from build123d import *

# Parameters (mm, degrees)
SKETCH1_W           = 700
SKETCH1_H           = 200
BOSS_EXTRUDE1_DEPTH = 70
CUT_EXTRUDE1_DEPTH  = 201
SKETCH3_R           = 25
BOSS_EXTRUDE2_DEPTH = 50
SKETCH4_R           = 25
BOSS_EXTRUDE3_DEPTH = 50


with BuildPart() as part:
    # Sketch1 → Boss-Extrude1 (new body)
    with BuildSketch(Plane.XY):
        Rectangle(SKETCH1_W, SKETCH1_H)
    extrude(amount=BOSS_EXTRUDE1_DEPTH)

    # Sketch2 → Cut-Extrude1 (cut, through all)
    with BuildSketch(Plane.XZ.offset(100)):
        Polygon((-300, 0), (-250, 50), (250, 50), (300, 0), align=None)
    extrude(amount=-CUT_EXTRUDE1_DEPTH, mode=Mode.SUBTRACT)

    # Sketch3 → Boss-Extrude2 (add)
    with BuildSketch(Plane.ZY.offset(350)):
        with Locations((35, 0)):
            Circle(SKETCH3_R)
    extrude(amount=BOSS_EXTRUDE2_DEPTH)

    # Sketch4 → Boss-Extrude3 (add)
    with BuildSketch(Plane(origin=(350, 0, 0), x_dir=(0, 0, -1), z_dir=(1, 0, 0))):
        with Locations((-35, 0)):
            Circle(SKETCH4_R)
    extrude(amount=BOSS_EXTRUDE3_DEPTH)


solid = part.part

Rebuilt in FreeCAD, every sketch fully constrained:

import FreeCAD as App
import Part
import Sketcher
from FreeCAD import Vector


def add_polygon(sketch, points):
    """Adds a closed chain of lines whose ends are joined by coincident constraints."""
    first, n = sketch.GeometryCount, len(points)
    for a, b in zip(points, points[1:] + points[:1]):
        sketch.addGeometry(Part.LineSegment(App.Vector(*a, 0), App.Vector(*b, 0)), False)
    for i in range(n):
        sketch.addConstraint(Sketcher.Constraint("Coincident", first + i, 2, first + (i + 1) % n, 1))

doc = App.newDocument("Part")
params = doc.addObject("Spreadsheet::Sheet", "Params")
for row, (alias, value) in enumerate([
    ("sketch1_width", "700 mm"),
    ("sketch1_height", "200 mm"),
    ("pad1_length", "70 mm"),
    ("sketch2_width", "600 mm"),
    ("sketch2_width2", "500 mm"),
    ("sketch3_diameter", "50 mm"),
    ("pad2_length", "50 mm"),
    ("sketch4_diameter", "50 mm"),
    ("pad3_length", "50 mm"),
], start=1):
    params.set(f"A{row}", alias)
    params.set(f"B{row}", "=" + value)
    params.setAlias(f"B{row}", alias)

body = doc.addObject("PartDesign::Body", "Body")

sketch1 = doc.addObject("Sketcher::SketchObject", "Sketch")
body.addObject(sketch1)
sketch1.AttachmentSupport = (doc.XY_Plane, [""])
sketch1.MapMode = "FlatFace"
add_polygon(sketch1, [(-350, 100), (-350, -100), (350, -100), (350, 100)])
sketch1.addConstraint(Sketcher.Constraint("Vertical", 0))
sketch1.addConstraint(Sketcher.Constraint("Horizontal", 1))
sketch1.addConstraint(Sketcher.Constraint("Vertical", 2))
sketch1.addConstraint(Sketcher.Constraint("Horizontal", 3))
sketch1.addConstraint(Sketcher.Constraint("Symmetric", 0, 2, 2, 2, -1, 1))
sketch1.addConstraint(Sketcher.Constraint("DistanceX", 1, 1, 1, 2, 700.0))
sketch1.addConstraint(Sketcher.Constraint("DistanceY", 0, 2, 0, 1, 200.0))
sketch1.setExpression("Constraints[9]", "Params.sketch1_width")
sketch1.setExpression("Constraints[10]", "Params.sketch1_height")
pad1 = doc.addObject("PartDesign::Pad", "Pad")
body.addObject(pad1)
pad1.Profile = sketch1
pad1.setExpression("Length", "Params.pad1_length")

sketch2 = doc.addObject("Sketcher::SketchObject", "Sketch001")
body.addObject(sketch2)
sketch2.AttachmentSupport = (doc.XZ_Plane, [""])
sketch2.MapMode = "FlatFace"
sketch2.AttachmentOffset = App.Placement(Vector(0, 0, 100), App.Rotation())
add_polygon(sketch2, [(-250, 50), (-300, 0), (300, 0), (250, 50)])
sketch2.addConstraint(Sketcher.Constraint("Horizontal", 1))
sketch2.addConstraint(Sketcher.Constraint("Horizontal", 3))
sketch2.addConstraint(Sketcher.Constraint("Symmetric", 0, 2, 1, 2, -1, 1))
sketch2.addConstraint(Sketcher.Constraint("Perpendicular", 0, 2))
sketch2.addConstraint(Sketcher.Constraint("Equal", 0, 2))
sketch2.addConstraint(Sketcher.Constraint("DistanceX", 1, 1, 1, 2, 600.0))
sketch2.addConstraint(Sketcher.Constraint("DistanceX", 3, 2, 3, 1, 500.0))
sketch2.setExpression("Constraints[9]", "Params.sketch2_width")
sketch2.setExpression("Constraints[10]", "Params.sketch2_width2")
pocket1 = doc.addObject("PartDesign::Pocket", "Pocket")
body.addObject(pocket1)
pocket1.Profile = sketch2
pocket1.Type = "ThroughAll"

sketch3 = doc.addObject("Sketcher::SketchObject", "Sketch002")
body.addObject(sketch3)
sketch3.AttachmentSupport = (doc.YZ_Plane, [""])
sketch3.MapMode = "FlatFace"
sketch3.AttachmentOffset = App.Placement(Vector(0, 0, -350), App.Rotation())
sketch3.addGeometry(Part.Circle(Vector(0, 35, 0), Vector(0, 0, 1), 25), False)
sketch3.addConstraint(Sketcher.Constraint("PointOnObject", 0, 3, -2))
sketch3.addConstraint(Sketcher.Constraint("Diameter", 0, 50.0))
sketch3.addConstraint(Sketcher.Constraint("DistanceY", -1, 1, 0, 3, 35.0))
sketch3.setExpression("Constraints[1]", "Params.sketch3_diameter")
pad2 = doc.addObject("PartDesign::Pad", "Pad001")
body.addObject(pad2)
pad2.Profile = sketch3
pad2.setExpression("Length", "Params.pad2_length")
pad2.Reversed = True

sketch4 = doc.addObject("Sketcher::SketchObject", "Sketch003")
body.addObject(sketch4)
sketch4.AttachmentSupport = (doc.YZ_Plane, [""])
sketch4.MapMode = "FlatFace"
sketch4.AttachmentOffset = App.Placement(Vector(0, 0, 350), App.Rotation())
sketch4.addGeometry(Part.Circle(Vector(0, 35, 0), Vector(0, 0, 1), 25), False)
sketch4.addConstraint(Sketcher.Constraint("PointOnObject", 0, 3, -2))
sketch4.addConstraint(Sketcher.Constraint("Diameter", 0, 50.0))
sketch4.addConstraint(Sketcher.Constraint("DistanceY", -1, 1, 0, 3, 35.0))
sketch4.setExpression("Constraints[1]", "Params.sketch4_diameter")
pad3 = doc.addObject("PartDesign::Pad", "Pad002")
body.addObject(pad3)
pad3.Profile = sketch4
pad3.setExpression("Length", "Params.pad3_length")

doc.recompute()
